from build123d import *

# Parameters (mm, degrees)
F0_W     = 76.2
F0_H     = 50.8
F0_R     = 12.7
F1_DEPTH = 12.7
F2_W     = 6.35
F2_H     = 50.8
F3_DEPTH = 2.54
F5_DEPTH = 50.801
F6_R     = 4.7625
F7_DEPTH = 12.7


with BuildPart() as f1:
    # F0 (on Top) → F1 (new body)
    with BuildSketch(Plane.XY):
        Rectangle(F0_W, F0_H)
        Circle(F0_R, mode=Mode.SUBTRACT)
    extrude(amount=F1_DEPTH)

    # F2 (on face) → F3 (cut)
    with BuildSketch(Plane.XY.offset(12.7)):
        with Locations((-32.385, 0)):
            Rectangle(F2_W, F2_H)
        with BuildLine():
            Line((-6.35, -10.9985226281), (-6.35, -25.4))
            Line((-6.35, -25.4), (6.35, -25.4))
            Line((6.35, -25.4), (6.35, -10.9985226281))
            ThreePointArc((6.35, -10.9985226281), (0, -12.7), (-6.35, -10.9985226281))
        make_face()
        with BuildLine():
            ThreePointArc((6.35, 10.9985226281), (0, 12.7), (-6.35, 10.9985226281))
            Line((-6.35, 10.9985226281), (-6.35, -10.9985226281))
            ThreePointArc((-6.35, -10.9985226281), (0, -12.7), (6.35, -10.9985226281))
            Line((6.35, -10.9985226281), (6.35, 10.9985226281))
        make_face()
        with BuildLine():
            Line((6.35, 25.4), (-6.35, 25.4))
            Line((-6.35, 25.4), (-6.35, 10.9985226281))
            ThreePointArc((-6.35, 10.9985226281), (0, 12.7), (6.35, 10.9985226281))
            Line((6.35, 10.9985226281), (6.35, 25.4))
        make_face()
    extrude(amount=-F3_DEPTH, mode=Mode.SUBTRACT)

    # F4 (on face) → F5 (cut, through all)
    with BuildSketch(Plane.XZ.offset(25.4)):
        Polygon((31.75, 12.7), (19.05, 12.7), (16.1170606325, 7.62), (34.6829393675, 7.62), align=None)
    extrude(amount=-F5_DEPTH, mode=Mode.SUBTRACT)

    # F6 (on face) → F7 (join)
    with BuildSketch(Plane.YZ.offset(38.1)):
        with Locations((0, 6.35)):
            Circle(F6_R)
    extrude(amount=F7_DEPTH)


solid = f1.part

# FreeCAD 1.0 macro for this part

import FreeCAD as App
import Part
import Sketcher
from FreeCAD import Vector
Q = App.Units.Quantity

doc = App.newDocument("Part")
body = doc.addObject("PartDesign::Body", "Body")

# Sketch on XY plane
sketch1 = body.newObject("Sketcher::SketchObject", "Sketch")
sketch1.AttachmentSupport = (doc.getObject("XY_Plane"), [""])
sketch1.MapMode = "FlatFace"
sketch1.addGeometry(Part.LineSegment(Vector(-38, 25, 0), Vector(-38, -25, 0)), False)
sketch1.addGeometry(Part.LineSegment(Vector(-38, -25, 0), Vector(38, -25, 0)), False)
sketch1.addGeometry(Part.LineSegment(Vector(38, -25, 0), Vector(38, 25, 0)), False)
sketch1.addGeometry(Part.LineSegment(Vector(38, 25, 0), Vector(-38, 25, 0)), False)
sketch1.addGeometry(Part.Circle(Vector(0, 0, 0), Vector(0, 0, 1), 13), False)
sketch1.addConstraint(Sketcher.Constraint("Coincident", 0, 2, 1, 1))
sketch1.addConstraint(Sketcher.Constraint("Coincident", 1, 2, 2, 1))
sketch1.addConstraint(Sketcher.Constraint("Coincident", 2, 2, 3, 1))
sketch1.addConstraint(Sketcher.Constraint("Coincident", 3, 2, 0, 1))
sketch1.addConstraint(Sketcher.Constraint("Vertical", 0))
sketch1.addConstraint(Sketcher.Constraint("Horizontal", 1))
sketch1.addConstraint(Sketcher.Constraint("Vertical", 2))
sketch1.addConstraint(Sketcher.Constraint("Horizontal", 3))
sketch1.addConstraint(Sketcher.Constraint("Coincident", 4, 3, -1, 1))
sketch1.addConstraint(Sketcher.Constraint("Symmetric", 0, 2, 2, 2, -1, 1))
sketch1.addConstraint(Sketcher.Constraint("Diameter", 4, Q("1 in")))
sketch1.addConstraint(Sketcher.Constraint("DistanceX", 1, 1, 1, 2, Q("3 in")))
sketch1.addConstraint(Sketcher.Constraint("DistanceY", 0, 2, 0, 1, Q("2 in")))
pad1 = body.newObject("PartDesign::Pad", "Pad")
pad1.Profile = sketch1
pad1.Length = Q("0.5 in")

# Sketch on XY plane
sketch2 = body.newObject("Sketcher::SketchObject", "Sketch001")
sketch2.AttachmentSupport = (doc.getObject("XY_Plane"), [""])
sketch2.MapMode = "FlatFace"
sketch2.AttachmentOffset = App.Placement(Vector(0, 0, 0.5 * 25.4), App.Rotation())
sketch2.addGeometry(Part.LineSegment(Vector(-36, 25, 0), Vector(-36, -25, 0)), False)
sketch2.addGeometry(Part.LineSegment(Vector(-36, -25, 0), Vector(-29, -25, 0)), False)
sketch2.addGeometry(Part.LineSegment(Vector(-29, -25, 0), Vector(-29, 25, 0)), False)
sketch2.addGeometry(Part.LineSegment(Vector(-29, 25, 0), Vector(-36, 25, 0)), False)
sketch2.addGeometry(Part.LineSegment(Vector(-6, -25, 0), Vector(6, -25, 0)), False)
sketch2.addGeometry(Part.LineSegment(Vector(6, -25, 0), Vector(6, 25, 0)), False)
sketch2.addGeometry(Part.LineSegment(Vector(6, 25, 0), Vector(-6, 25, 0)), False)
sketch2.addGeometry(Part.LineSegment(Vector(-6, 25, 0), Vector(-6, -25, 0)), False)
sketch2.addConstraint(Sketcher.Constraint("Coincident", 0, 2, 1, 1))
sketch2.addConstraint(Sketcher.Constraint("Coincident", 1, 2, 2, 1))
sketch2.addConstraint(Sketcher.Constraint("Coincident", 2, 2, 3, 1))
sketch2.addConstraint(Sketcher.Constraint("Coincident", 3, 2, 0, 1))
sketch2.addConstraint(Sketcher.Constraint("Coincident", 4, 2, 5, 1))
sketch2.addConstraint(Sketcher.Constraint("Coincident", 5, 2, 6, 1))
sketch2.addConstraint(Sketcher.Constraint("Coincident", 6, 2, 7, 1))
sketch2.addConstraint(Sketcher.Constraint("Coincident", 7, 2, 4, 1))
sketch2.addConstraint(Sketcher.Constraint("Vertical", 0))
sketch2.addConstraint(Sketcher.Constraint("Horizontal", 1))
sketch2.addConstraint(Sketcher.Constraint("Vertical", 2))
sketch2.addConstraint(Sketcher.Constraint("Horizontal", 3))
sketch2.addConstraint(Sketcher.Constraint("Horizontal", 4))
sketch2.addConstraint(Sketcher.Constraint("Vertical", 5))
sketch2.addConstraint(Sketcher.Constraint("Horizontal", 6))
sketch2.addConstraint(Sketcher.Constraint("Vertical", 7))
sketch2.addConstraint(Sketcher.Constraint("Symmetric", 4, 2, 6, 2, -1, 1))
sketch2.addConstraint(Sketcher.Constraint("Horizontal", 1, 2, 4, 2))
sketch2.addConstraint(Sketcher.Constraint("Horizontal", 3, 2, 5, 2))
sketch2.addConstraint(Sketcher.Constraint("DistanceY", 0, 2, 0, 1, Q("2 in")))
sketch2.addConstraint(Sketcher.Constraint("DistanceX", 4, 1, 4, 2, Q("0.5 in")))
sketch2.addConstraint(Sketcher.Constraint("DistanceX", 1, 1, 1, 2, Q("0.25 in")))
sketch2.addConstraint(Sketcher.Constraint("DistanceX", 0, 2, -1, 1, Q("1.4 in")))
pocket1 = body.newObject("PartDesign::Pocket", "Pocket")
pocket1.Profile = sketch2
pocket1.Length = Q("0.1 in")

# Sketch on XZ plane
sketch3 = body.newObject("Sketcher::SketchObject", "Sketch002")
sketch3.AttachmentSupport = (doc.getObject("XZ_Plane"), [""])
sketch3.MapMode = "FlatFace"
sketch3.AttachmentOffset = App.Placement(Vector(0, 0, 1 * 25.4), App.Rotation())
sketch3.addGeometry(Part.LineSegment(Vector(32, 13, 0), Vector(19, 13, 0)), False)
sketch3.addGeometry(Part.LineSegment(Vector(19, 13, 0), Vector(16, 8, 0)), False)
sketch3.addGeometry(Part.LineSegment(Vector(16, 8, 0), Vector(35, 8, 0)), False)
sketch3.addGeometry(Part.LineSegment(Vector(35, 8, 0), Vector(32, 13, 0)), False)
sketch3.addConstraint(Sketcher.Constraint("Coincident", 0, 2, 1, 1))
sketch3.addConstraint(Sketcher.Constraint("Coincident", 1, 2, 2, 1))
sketch3.addConstraint(Sketcher.Constraint("Coincident", 2, 2, 3, 1))
sketch3.addConstraint(Sketcher.Constraint("Coincident", 3, 2, 0, 1))
sketch3.addConstraint(Sketcher.Constraint("Horizontal", 0))
sketch3.addConstraint(Sketcher.Constraint("Horizontal", 2))
sketch3.addConstraint(Sketcher.Constraint("Equal", 1, 3))
sketch3.addConstraint(Sketcher.Constraint("DistanceX", 0, 2, 0, 1, Q("0.5 in")))
sketch3.addConstraint(Sketcher.Constraint("Angle", 1, Q("-120 deg")))
sketch3.addConstraint(Sketcher.Constraint("DistanceY", -1, 1, 0, 2, Q("0.5 in")))
sketch3.addConstraint(Sketcher.Constraint("DistanceY", -1, 1, 1, 2, Q("0.3 in")))
sketch3.addConstraint(Sketcher.Constraint("DistanceX", -1, 1, 0, 2, Q("0.75 in")))
pocket2 = body.newObject("PartDesign::Pocket", "Pocket001")
pocket2.Profile = sketch3
pocket2.Type = "ThroughAll"

# Sketch on YZ plane
sketch4 = body.newObject("Sketcher::SketchObject", "Sketch003")
sketch4.AttachmentSupport = (doc.getObject("YZ_Plane"), [""])
sketch4.MapMode = "FlatFace"
sketch4.AttachmentOffset = App.Placement(Vector(0, 0, 1.5 * 25.4), App.Rotation())
sketch4.addGeometry(Part.Circle(Vector(0, 6.3, 0), Vector(0, 0, 1), 4.8), False)
sketch4.addConstraint(Sketcher.Constraint("PointOnObject", 0, 3, -2))
sketch4.addConstraint(Sketcher.Constraint("Diameter", 0, Q("0.375 in")))
sketch4.addConstraint(Sketcher.Constraint("DistanceY", -1, 1, 0, 3, Q("0.25 in")))
pad2 = body.newObject("PartDesign::Pad", "Pad001")
pad2.Profile = sketch4
pad2.Length = Q("0.5 in")

doc.recompute()
